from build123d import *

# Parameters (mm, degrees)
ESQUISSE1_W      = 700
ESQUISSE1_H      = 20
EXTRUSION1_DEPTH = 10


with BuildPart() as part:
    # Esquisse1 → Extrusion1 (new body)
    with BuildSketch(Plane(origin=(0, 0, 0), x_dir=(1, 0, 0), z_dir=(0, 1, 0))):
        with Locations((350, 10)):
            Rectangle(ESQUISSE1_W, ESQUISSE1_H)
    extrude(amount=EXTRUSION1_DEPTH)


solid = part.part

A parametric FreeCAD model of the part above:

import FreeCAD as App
import Part
import Sketcher
from FreeCAD import Vector
Q = App.Units.Quantity

doc = App.newDocument("Part")
body = doc.addObject("PartDesign::Body", "Body")

# Sketch on XZ plane
sketch1 = body.newObject("Sketcher::SketchObject", "Sketch")
sketch1.AttachmentSupport = (doc.getObject("XZ_Plane"), [""])
sketch1.MapMode = "FlatFace"
sketch1.addGeometry([
    Part.LineSegment(Vector(0, -20, 0), Vector(0, 0, 0)),
    Part.LineSegment(Vector(0, 0, 0), Vector(700, 0, 0)),
    Part.LineSegment(Vector(700, 0, 0), Vector(700, -20, 0)),
    Part.LineSegment(Vector(700, -20, 0), Vector(0, -20, 0)),
], False)
sketch1.addConstraint([
    Sketcher.Constraint("Coincident", 0, 2, 1, 1),
    Sketcher.Constraint("Coincident", 1, 2, 2, 1),
    Sketcher.Constraint("Coincident", 2, 2, 3, 1),
    Sketcher.Constraint("Coincident", 3, 2, 0, 1),
    Sketcher.Constraint("Vertical", 0),
    Sketcher.Constraint("Horizontal", 1),
    Sketcher.Constraint("Vertical", 2),
    Sketcher.Constraint("Horizontal", 3),
    Sketcher.Constraint("Coincident", 0, 2, -1, 1),
    Sketcher.Constraint("DistanceX", 1, 1, 1, 2, Q("700 mm")),
    Sketcher.Constraint("DistanceY", 0, 1, 0, 2, Q("20 mm")),
])
pad1 = body.newObject("PartDesign::Pad", "Pad")
pad1.Profile = sketch1
pad1.Length = 10
pad1.Reversed = True

doc.recompute()
